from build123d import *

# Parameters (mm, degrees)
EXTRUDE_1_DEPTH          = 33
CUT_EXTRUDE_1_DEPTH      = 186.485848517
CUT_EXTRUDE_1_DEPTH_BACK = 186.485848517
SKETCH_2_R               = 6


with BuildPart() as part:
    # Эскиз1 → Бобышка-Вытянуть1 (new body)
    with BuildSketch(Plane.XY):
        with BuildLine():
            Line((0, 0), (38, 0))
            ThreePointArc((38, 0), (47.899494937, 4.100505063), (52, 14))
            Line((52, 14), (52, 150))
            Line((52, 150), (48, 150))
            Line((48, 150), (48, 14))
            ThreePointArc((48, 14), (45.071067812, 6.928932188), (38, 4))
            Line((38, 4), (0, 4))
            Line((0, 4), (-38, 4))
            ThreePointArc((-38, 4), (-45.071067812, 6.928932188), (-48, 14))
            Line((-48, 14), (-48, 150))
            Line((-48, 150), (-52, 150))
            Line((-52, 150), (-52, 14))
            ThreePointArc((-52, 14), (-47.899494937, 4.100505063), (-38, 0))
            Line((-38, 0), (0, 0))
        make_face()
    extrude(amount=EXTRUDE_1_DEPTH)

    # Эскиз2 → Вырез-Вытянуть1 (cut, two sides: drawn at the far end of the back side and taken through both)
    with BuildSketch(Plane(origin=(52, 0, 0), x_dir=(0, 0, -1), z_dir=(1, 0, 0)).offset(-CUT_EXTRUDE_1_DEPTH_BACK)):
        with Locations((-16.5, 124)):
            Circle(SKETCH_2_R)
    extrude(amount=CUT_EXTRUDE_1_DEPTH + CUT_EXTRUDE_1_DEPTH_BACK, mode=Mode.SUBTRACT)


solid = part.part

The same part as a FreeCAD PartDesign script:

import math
import FreeCAD as App
import Part
import Sketcher

doc = App.newDocument("Part")
body = doc.addObject("PartDesign::Body", "Body")

# Sketch on XY plane
sketch1 = doc.addObject("Sketcher::SketchObject", "Sketch")
body.addObject(sketch1)
sketch1.AttachmentSupport = (doc.XY_Plane, [""])
sketch1.MapMode = "FlatFace"
sketch1.addGeometry([
    Part.ArcOfCircle(Part.Circle(App.Vector(38, 14, 0), App.Vector(0, 0, 1), 14), math.radians(-90), math.radians(0)),  # 0
    Part.LineSegment(App.Vector(52, 14, 0), App.Vector(52, 150, 0)),  # 1
    Part.LineSegment(App.Vector(52, 150, 0), App.Vector(48, 150, 0)),  # 2
    Part.LineSegment(App.Vector(48, 150, 0), App.Vector(48, 14, 0)),  # 3
    Part.ArcOfCircle(Part.Circle(App.Vector(38, 14, 0), App.Vector(0, 0, 1), 10), math.radians(-90), math.radians(0)),  # 4
    Part.LineSegment(App.Vector(38, 4, 0), App.Vector(-38, 4, 0)),  # 5
    Part.ArcOfCircle(Part.Circle(App.Vector(-38, 14, 0), App.Vector(0, 0, 1), 10), math.radians(180), math.radians(270)),  # 6
    Part.LineSegment(App.Vector(-48, 14, 0), App.Vector(-48, 150, 0)),  # 7
    Part.LineSegment(App.Vector(-48, 150, 0), App.Vector(-52, 150, 0)),  # 8
    Part.LineSegment(App.Vector(-52, 150, 0), App.Vector(-52, 14, 0)),  # 9
    Part.ArcOfCircle(Part.Circle(App.Vector(-38, 14, 0), App.Vector(0, 0, 1), 14), math.radians(180), math.radians(270)),  # 10
    Part.LineSegment(App.Vector(-38, 0, 0), App.Vector(38, 0, 0)),  # 11
], False)
sketch1.addConstraint([
    Sketcher.Constraint("Tangent", 0, 2, 1, 1),
    Sketcher.Constraint("Coincident", 1, 2, 2, 1),
    Sketcher.Constraint("Coincident", 2, 2, 3, 1),
    Sketcher.Constraint("Tangent", 3, 2, 4, 2),
    Sketcher.Constraint("Tangent", 4, 1, 5, 1),
    Sketcher.Constraint("Tangent", 5, 2, 6, 2),
    Sketcher.Constraint("Tangent", 6, 1, 7, 1),
    Sketcher.Constraint("Coincident", 7, 2, 8, 1),
    Sketcher.Constraint("Coincident", 8, 2, 9, 1),
    Sketcher.Constraint("Tangent", 9, 2, 10, 1),
    Sketcher.Constraint("Tangent", 10, 2, 11, 1),
    Sketcher.Constraint("Tangent", 11, 2, 0, 1),
    Sketcher.Constraint("Vertical", 1),
    Sketcher.Constraint("Horizontal", 2),
    Sketcher.Constraint("Vertical", 3),
    Sketcher.Constraint("Horizontal", 5),
    Sketcher.Constraint("Vertical", 7),
    Sketcher.Constraint("Horizontal", 8),
    Sketcher.Constraint("Vertical", 9),
    Sketcher.Constraint("Horizontal", 11),
    Sketcher.Constraint("Coincident", 4, 3, 0, 3),
    Sketcher.Constraint("Coincident", 10, 3, 6, 3),
    Sketcher.Constraint("Equal", 4, 6),
    Sketcher.Constraint("Symmetric", 10, 2, 11, 2, -1, 1),
    Sketcher.Constraint("Horizontal", 2, 2, 7, 2),
    Sketcher.Constraint("Radius", 0, 14.0),
    Sketcher.Constraint("Radius", 4, 10.0),
    Sketcher.Constraint("DistanceX", 5, 2, 5, 1, 76.0),
    Sketcher.Constraint("DistanceY", 1, 1, 1, 2, 136.0),
])
pad1 = doc.addObject("PartDesign::Pad", "Pad")
body.addObject(pad1)
pad1.Profile = sketch1
pad1.Length = 33

# Sketch on YZ plane
sketch2 = doc.addObject("Sketcher::SketchObject", "Sketch001")
body.addObject(sketch2)
sketch2.AttachmentSupport = (doc.YZ_Plane, [""])
sketch2.MapMode = "FlatFace"
sketch2.AttachmentOffset = App.Placement(App.Vector(0, 0, 52), App.Rotation())
sketch2.addGeometry(Part.Circle(App.Vector(124, 16, 0), App.Vector(0, 0, 1), 6), False)
sketch2.addConstraint([
    Sketcher.Constraint("Diameter", 0, 12.0),
    Sketcher.Constraint("DistanceX", -1, 1, 0, 3, 124.0),
    Sketcher.Constraint("DistanceY", -1, 1, 0, 3, 16.5),
])
pocket1 = doc.addObject("PartDesign::Pocket", "Pocket")
body.addObject(pocket1)
pocket1.Profile = sketch2
pocket1.Type = "ThroughAll"
pocket1.Midplane = True

doc.recompute()
